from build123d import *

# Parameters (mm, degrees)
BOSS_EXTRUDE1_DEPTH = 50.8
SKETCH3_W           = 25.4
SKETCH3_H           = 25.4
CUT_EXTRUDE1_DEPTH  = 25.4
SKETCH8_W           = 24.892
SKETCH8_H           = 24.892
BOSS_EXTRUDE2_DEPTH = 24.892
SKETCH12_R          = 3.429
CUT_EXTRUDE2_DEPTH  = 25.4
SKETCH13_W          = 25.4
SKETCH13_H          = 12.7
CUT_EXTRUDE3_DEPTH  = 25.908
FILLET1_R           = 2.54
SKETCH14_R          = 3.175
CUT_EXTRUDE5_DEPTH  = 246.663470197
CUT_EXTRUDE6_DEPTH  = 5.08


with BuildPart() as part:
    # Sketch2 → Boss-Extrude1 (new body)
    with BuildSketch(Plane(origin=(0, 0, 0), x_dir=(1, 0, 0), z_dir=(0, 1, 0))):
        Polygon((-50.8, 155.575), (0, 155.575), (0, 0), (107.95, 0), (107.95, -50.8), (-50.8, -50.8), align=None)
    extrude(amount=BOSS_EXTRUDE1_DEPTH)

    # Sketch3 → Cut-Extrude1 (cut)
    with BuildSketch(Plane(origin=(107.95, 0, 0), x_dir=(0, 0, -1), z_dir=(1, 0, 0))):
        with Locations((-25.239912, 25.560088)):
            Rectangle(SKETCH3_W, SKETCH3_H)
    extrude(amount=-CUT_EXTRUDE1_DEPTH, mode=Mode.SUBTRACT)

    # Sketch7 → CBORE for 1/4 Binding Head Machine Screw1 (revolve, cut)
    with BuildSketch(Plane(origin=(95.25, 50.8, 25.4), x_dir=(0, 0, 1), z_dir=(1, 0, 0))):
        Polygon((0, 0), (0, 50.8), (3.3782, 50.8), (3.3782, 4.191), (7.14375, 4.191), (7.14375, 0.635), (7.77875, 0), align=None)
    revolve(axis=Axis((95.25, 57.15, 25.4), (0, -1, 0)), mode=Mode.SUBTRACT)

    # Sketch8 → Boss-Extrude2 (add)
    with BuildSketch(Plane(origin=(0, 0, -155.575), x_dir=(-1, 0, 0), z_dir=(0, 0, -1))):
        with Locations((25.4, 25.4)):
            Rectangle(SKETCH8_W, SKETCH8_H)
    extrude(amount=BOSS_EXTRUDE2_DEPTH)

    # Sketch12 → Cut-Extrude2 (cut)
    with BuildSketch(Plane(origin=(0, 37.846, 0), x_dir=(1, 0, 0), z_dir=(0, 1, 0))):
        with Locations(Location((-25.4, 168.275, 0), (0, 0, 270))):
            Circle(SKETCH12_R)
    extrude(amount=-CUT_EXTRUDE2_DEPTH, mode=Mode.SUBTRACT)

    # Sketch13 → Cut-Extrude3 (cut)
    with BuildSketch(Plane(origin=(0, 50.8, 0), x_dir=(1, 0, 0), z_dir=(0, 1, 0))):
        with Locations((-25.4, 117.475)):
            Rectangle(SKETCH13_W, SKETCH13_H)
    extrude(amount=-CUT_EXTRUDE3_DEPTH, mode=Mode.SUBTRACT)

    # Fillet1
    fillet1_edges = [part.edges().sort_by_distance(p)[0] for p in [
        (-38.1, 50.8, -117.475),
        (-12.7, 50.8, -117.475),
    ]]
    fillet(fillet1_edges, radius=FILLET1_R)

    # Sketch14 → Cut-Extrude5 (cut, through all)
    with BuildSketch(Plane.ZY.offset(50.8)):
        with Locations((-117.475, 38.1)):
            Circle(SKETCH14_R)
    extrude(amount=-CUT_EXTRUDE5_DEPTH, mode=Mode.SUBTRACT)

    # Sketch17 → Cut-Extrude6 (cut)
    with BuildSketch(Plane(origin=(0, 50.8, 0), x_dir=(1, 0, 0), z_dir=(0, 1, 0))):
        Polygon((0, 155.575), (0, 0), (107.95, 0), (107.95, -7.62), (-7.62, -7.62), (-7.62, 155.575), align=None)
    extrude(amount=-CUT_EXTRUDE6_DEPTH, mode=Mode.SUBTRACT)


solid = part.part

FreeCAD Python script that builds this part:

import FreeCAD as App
import Part
import Sketcher

V = App.Vector
Q = App.Units.Quantity


def edges_at(feature, points):
    """Names of the edges that pass closest to the given points."""
    edges = feature.Shape.Edges
    near = lambda p: min(range(len(edges)), key=lambda i: edges[i].distToShape(Part.Vertex(*p))[0])
    return sorted({f"Edge{near(p) + 1}" for p in points})


def add_polygon(sketch, points):
    """Adds a closed chain of lines whose ends are joined by coincident constraints."""
    first, n = sketch.GeometryCount, len(points)
    for a, b in zip(points, points[1:] + points[:1]):
        sketch.addGeometry(Part.LineSegment(App.Vector(*a, 0), App.Vector(*b, 0)), False)
    for i in range(n):
        sketch.addConstraint(Sketcher.Constraint("Coincident", first + i, 2, first + (i + 1) % n, 1))

doc = App.newDocument("Part")
body = doc.addObject("PartDesign::Body", "Body")

# Sketch on XZ plane
sketch1 = body.newObject("Sketcher::SketchObject", "Sketch")
sketch1.AttachmentSupport = (doc.getObject("XZ_Plane"), [""])
sketch1.MapMode = "FlatFace"
add_polygon(sketch1, [(0, -155.575), (-50.8, -155.575), (-50.8, 50.8), (107.95, 50.8), (107.95, 0), (0, 0)])  # lines 0-5
sketch1.addConstraint([
    Sketcher.Constraint("Horizontal", 0),
    Sketcher.Constraint("Vertical", 1),
    Sketcher.Constraint("Horizontal", 2),
    Sketcher.Constraint("Vertical", 3),
    Sketcher.Constraint("Horizontal", 4),
    Sketcher.Constraint("Vertical", 5),
    Sketcher.Constraint("Coincident", 4, 2, -1, 1),
    Sketcher.Constraint("Equal", 0, 3),
    Sketcher.Constraint("DistanceX", 0, 2, 0, 1, Q("2 in")),
    Sketcher.Constraint("DistanceX", 2, 1, 2, 2, Q("6.25 in")),
    Sketcher.Constraint("DistanceY", 1, 1, 1, 2, Q("8.125 in")),
])
pad1 = body.newObject("PartDesign::Pad", "Pad")
pad1.Profile = sketch1
pad1.Length = Q("2 in")
pad1.Reversed = True

# Sketch on YZ plane
sketch2 = body.newObject("Sketcher::SketchObject", "Sketch001")
sketch2.AttachmentSupport = (doc.getObject("YZ_Plane"), [""])
sketch2.MapMode = "FlatFace"
sketch2.AttachmentOffset = App.Placement(V(0, 0, 4.25 * 25.4), App.Rotation())
add_polygon(sketch2, [(38.260088, 37.939912), (12.860088, 37.939912), (12.860088, 12.539912), (38.260088, 12.539912)])  # lines 0-3
sketch2.addConstraint([
    Sketcher.Constraint("Horizontal", 0),
    Sketcher.Constraint("Vertical", 1),
    Sketcher.Constraint("Horizontal", 2),
    Sketcher.Constraint("Vertical", 3),
    Sketcher.Constraint("Equal", 2, 1),
    Sketcher.Constraint("DistanceX", 0, 2, 0, 1, Q("1 in")),
    Sketcher.Constraint("DistanceY", -1, 1, 1, 2, 12.539912),
    Sketcher.Constraint("DistanceX", -1, 1, 2, 2, 38.260088),
])
pocket1 = body.newObject("PartDesign::Pocket", "Pocket")
pocket1.Profile = sketch2
pocket1.Length = Q("1 in")

# Sketch on YZ plane
sketch3 = body.newObject("Sketcher::SketchObject", "Sketch002")
sketch3.AttachmentSupport = (doc.getObject("YZ_Plane"), [""])
sketch3.MapMode = "FlatFace"
sketch3.AttachmentOffset = App.Placement(V(0, 0, 3.75 * 25.4), App.Rotation())
add_polygon(sketch3, [(0, 25.4), (50.8, 25.4), (50.8, 33.17875), (50.165, 32.54375), (46.609, 32.54375), (46.609, 28.7782), (0, 28.7782)])  # lines 0-6
sketch3.addGeometry(Part.LineSegment(V(50.8, 25.4, 0), V(0, 25.4, 0)), True)  # axis
sketch3.addConstraint([
    Sketcher.Constraint("Horizontal", 0),
    Sketcher.Constraint("Vertical", 1),
    Sketcher.Constraint("Horizontal", 3),
    Sketcher.Constraint("Vertical", 4),
    Sketcher.Constraint("Horizontal", 5),
    Sketcher.Constraint("Vertical", 6),
    Sketcher.Constraint("Horizontal", 7),
    Sketcher.Constraint("Coincident", 7, 1, 0, 2),
    Sketcher.Constraint("PointOnObject", 5, 2, -2),
    Sketcher.Constraint("PointOnObject", 7, 2, -2),
    Sketcher.Constraint("DistanceX", 0, 1, 0, 2, Q("2 in")),
    Sketcher.Constraint("DistanceY", -1, 1, 0, 2, Q("1 in")),
    Sketcher.Constraint("Angle", 2, Q("-135 deg")),
    Sketcher.Constraint("DistanceX", 3, 2, 3, 1, Q("0.14 in")),
    Sketcher.Constraint("DistanceX", 5, 2, 5, 1, Q("1.835 in")),
    Sketcher.Constraint("DistanceY", 6, 2, 6, 1, Q("0.133 in")),
    Sketcher.Constraint("DistanceY", -1, 1, 2, 2, Q("1.28125 in")),
])
groove = body.newObject("PartDesign::Groove", "Groove")
groove.Profile = sketch3
groove.ReferenceAxis = (sketch3, ["Axis0"])
groove.Angle = 360

# Sketch on XY plane
sketch4 = body.newObject("Sketcher::SketchObject", "Sketch003")
sketch4.AttachmentSupport = (doc.getObject("XY_Plane"), [""])
sketch4.MapMode = "FlatFace"
sketch4.AttachmentOffset = App.Placement(V(0, 0, -6.125 * 25.4), App.Rotation())
add_polygon(sketch4, [(-12.954, 37.846), (-12.954, 12.954), (-37.846, 12.954), (-37.846, 37.846)])  # lines 0-3
sketch4.addConstraint([
    Sketcher.Constraint("Vertical", 0),
    Sketcher.Constraint("Horizontal", 1),
    Sketcher.Constraint("Vertical", 2),
    Sketcher.Constraint("Horizontal", 3),
    Sketcher.Constraint("Equal", 3, 0),
    Sketcher.Constraint("DistanceX", 1, 2, 1, 1, Q("0.98 in")),
    Sketcher.Constraint("DistanceX", 0, 2, -1, 1, Q("0.51 in")),
    Sketcher.Constraint("DistanceY", -1, 1, 0, 2, Q("0.51 in")),
])
pad2 = body.newObject("PartDesign::Pad", "Pad001")
pad2.Profile = sketch4
pad2.Length = Q("0.98 in")
pad2.Reversed = True

# Sketch on XZ plane
sketch5 = body.newObject("Sketcher::SketchObject", "Sketch004")
sketch5.AttachmentSupport = (doc.getObject("XZ_Plane"), [""])
sketch5.MapMode = "FlatFace"
sketch5.AttachmentOffset = App.Placement(V(0, 0, -1.49 * 25.4), App.Rotation())
sketch5.addGeometry(Part.Circle(V(-25.4, -168.275, 0), V(0, 0, 1), 3.429), False)
sketch5.addConstraint([
    Sketcher.Constraint("Diameter", 0, Q("0.27 in")),
    Sketcher.Constraint("DistanceX", 0, 3, -1, 1, Q("1 in")),
    Sketcher.Constraint("DistanceY", 0, 3, -1, 1, Q("6.625 in")),
])
pocket2 = body.newObject("PartDesign::Pocket", "Pocket001")
pocket2.Profile = sketch5
pocket2.Length = Q("1 in")
pocket2.Reversed = True

# Sketch on XZ plane
sketch6 = body.newObject("Sketcher::SketchObject", "Sketch005")
sketch6.AttachmentSupport = (doc.getObject("XZ_Plane"), [""])
sketch6.MapMode = "FlatFace"
sketch6.AttachmentOffset = App.Placement(V(0, 0, -2 * 25.4), App.Rotation())
add_polygon(sketch6, [(-38.1, -123.825), (-38.1, -111.125), (-12.7, -111.125), (-12.7, -123.825)])  # lines 0-3
sketch6.addConstraint([
    Sketcher.Constraint("Vertical", 0),
    Sketcher.Constraint("Horizontal", 1),
    Sketcher.Constraint("Vertical", 2),
    Sketcher.Constraint("Horizontal", 3),
    Sketcher.Constraint("DistanceX", 1, 1, 1, 2, Q("1 in")),
    Sketcher.Constraint("DistanceY", 0, 1, 0, 2, Q("0.5 in")),
    Sketcher.Constraint("DistanceX", 0, 2, -1, 1, Q("1.5 in")),
    Sketcher.Constraint("DistanceY", 0, 2, -1, 1, Q("4.375 in")),
])
pocket3 = body.newObject("PartDesign::Pocket", "Pocket002")
pocket3.Profile = sketch6
pocket3.Length = Q("1.02 in")
pocket3.Reversed = True
doc.recompute()

fillet = body.newObject("PartDesign::Fillet", "Fillet")
fillet.Base = (pocket3, edges_at(pocket3, [(-38.1, 50.8, -117.475), (-12.7, 50.8, -117.475)]))
fillet.Radius = Q("0.1 in")

# Sketch on YZ plane
sketch7 = body.newObject("Sketcher::SketchObject", "Sketch006")
sketch7.AttachmentSupport = (doc.getObject("YZ_Plane"), [""])
sketch7.MapMode = "FlatFace"
sketch7.AttachmentOffset = App.Placement(V(0, 0, -2 * 25.4), App.Rotation())
sketch7.addGeometry(Part.Circle(V(38.1, -117.475, 0), V(0, 0, 1), 3.175), False)
sketch7.addConstraint([
    Sketcher.Constraint("Diameter", 0, Q("0.25 in")),
    Sketcher.Constraint("DistanceX", -1, 1, 0, 3, Q("1.5 in")),
    Sketcher.Constraint("DistanceY", 0, 3, -1, 1, Q("4.625 in")),
])
pocket4 = body.newObject("PartDesign::Pocket", "Pocket003")
pocket4.Profile = sketch7
pocket4.Type = "ThroughAll"
pocket4.Reversed = True

# Sketch on XZ plane
sketch8 = body.newObject("Sketcher::SketchObject", "Sketch007")
sketch8.AttachmentSupport = (doc.getObject("XZ_Plane"), [""])
sketch8.MapMode = "FlatFace"
sketch8.AttachmentOffset = App.Placement(V(0, 0, -2 * 25.4), App.Rotation())
add_polygon(sketch8, [(0, 0), (0, -155.575), (-7.62, -155.575), (-7.62, 7.62), (107.95, 7.62), (107.95, 0)])  # lines 0-5
sketch8.addConstraint([
    Sketcher.Constraint("Vertical", 0),
    Sketcher.Constraint("Horizontal", 1),
    Sketcher.Constraint("Vertical", 2),
    Sketcher.Constraint("Horizontal", 3),
    Sketcher.Constraint("Vertical", 4),
    Sketcher.Constraint("Horizontal", 5),
    Sketcher.Constraint("Coincident", 5, 2, -1, 1),
    Sketcher.Constraint("Equal", 1, 4),
    Sketcher.Constraint("DistanceX", 1, 2, 1, 1, Q("0.3 in")),
    Sketcher.Constraint("DistanceX", 3, 1, 3, 2, Q("4.55 in")),
    Sketcher.Constraint("DistanceY", 0, 2, 0, 1, Q("6.125 in")),
])
pocket5 = body.newObject("PartDesign::Pocket", "Pocket004")
pocket5.Profile = sketch8
pocket5.Length = Q("0.2 in")
pocket5.Reversed = True

doc.recompute()
